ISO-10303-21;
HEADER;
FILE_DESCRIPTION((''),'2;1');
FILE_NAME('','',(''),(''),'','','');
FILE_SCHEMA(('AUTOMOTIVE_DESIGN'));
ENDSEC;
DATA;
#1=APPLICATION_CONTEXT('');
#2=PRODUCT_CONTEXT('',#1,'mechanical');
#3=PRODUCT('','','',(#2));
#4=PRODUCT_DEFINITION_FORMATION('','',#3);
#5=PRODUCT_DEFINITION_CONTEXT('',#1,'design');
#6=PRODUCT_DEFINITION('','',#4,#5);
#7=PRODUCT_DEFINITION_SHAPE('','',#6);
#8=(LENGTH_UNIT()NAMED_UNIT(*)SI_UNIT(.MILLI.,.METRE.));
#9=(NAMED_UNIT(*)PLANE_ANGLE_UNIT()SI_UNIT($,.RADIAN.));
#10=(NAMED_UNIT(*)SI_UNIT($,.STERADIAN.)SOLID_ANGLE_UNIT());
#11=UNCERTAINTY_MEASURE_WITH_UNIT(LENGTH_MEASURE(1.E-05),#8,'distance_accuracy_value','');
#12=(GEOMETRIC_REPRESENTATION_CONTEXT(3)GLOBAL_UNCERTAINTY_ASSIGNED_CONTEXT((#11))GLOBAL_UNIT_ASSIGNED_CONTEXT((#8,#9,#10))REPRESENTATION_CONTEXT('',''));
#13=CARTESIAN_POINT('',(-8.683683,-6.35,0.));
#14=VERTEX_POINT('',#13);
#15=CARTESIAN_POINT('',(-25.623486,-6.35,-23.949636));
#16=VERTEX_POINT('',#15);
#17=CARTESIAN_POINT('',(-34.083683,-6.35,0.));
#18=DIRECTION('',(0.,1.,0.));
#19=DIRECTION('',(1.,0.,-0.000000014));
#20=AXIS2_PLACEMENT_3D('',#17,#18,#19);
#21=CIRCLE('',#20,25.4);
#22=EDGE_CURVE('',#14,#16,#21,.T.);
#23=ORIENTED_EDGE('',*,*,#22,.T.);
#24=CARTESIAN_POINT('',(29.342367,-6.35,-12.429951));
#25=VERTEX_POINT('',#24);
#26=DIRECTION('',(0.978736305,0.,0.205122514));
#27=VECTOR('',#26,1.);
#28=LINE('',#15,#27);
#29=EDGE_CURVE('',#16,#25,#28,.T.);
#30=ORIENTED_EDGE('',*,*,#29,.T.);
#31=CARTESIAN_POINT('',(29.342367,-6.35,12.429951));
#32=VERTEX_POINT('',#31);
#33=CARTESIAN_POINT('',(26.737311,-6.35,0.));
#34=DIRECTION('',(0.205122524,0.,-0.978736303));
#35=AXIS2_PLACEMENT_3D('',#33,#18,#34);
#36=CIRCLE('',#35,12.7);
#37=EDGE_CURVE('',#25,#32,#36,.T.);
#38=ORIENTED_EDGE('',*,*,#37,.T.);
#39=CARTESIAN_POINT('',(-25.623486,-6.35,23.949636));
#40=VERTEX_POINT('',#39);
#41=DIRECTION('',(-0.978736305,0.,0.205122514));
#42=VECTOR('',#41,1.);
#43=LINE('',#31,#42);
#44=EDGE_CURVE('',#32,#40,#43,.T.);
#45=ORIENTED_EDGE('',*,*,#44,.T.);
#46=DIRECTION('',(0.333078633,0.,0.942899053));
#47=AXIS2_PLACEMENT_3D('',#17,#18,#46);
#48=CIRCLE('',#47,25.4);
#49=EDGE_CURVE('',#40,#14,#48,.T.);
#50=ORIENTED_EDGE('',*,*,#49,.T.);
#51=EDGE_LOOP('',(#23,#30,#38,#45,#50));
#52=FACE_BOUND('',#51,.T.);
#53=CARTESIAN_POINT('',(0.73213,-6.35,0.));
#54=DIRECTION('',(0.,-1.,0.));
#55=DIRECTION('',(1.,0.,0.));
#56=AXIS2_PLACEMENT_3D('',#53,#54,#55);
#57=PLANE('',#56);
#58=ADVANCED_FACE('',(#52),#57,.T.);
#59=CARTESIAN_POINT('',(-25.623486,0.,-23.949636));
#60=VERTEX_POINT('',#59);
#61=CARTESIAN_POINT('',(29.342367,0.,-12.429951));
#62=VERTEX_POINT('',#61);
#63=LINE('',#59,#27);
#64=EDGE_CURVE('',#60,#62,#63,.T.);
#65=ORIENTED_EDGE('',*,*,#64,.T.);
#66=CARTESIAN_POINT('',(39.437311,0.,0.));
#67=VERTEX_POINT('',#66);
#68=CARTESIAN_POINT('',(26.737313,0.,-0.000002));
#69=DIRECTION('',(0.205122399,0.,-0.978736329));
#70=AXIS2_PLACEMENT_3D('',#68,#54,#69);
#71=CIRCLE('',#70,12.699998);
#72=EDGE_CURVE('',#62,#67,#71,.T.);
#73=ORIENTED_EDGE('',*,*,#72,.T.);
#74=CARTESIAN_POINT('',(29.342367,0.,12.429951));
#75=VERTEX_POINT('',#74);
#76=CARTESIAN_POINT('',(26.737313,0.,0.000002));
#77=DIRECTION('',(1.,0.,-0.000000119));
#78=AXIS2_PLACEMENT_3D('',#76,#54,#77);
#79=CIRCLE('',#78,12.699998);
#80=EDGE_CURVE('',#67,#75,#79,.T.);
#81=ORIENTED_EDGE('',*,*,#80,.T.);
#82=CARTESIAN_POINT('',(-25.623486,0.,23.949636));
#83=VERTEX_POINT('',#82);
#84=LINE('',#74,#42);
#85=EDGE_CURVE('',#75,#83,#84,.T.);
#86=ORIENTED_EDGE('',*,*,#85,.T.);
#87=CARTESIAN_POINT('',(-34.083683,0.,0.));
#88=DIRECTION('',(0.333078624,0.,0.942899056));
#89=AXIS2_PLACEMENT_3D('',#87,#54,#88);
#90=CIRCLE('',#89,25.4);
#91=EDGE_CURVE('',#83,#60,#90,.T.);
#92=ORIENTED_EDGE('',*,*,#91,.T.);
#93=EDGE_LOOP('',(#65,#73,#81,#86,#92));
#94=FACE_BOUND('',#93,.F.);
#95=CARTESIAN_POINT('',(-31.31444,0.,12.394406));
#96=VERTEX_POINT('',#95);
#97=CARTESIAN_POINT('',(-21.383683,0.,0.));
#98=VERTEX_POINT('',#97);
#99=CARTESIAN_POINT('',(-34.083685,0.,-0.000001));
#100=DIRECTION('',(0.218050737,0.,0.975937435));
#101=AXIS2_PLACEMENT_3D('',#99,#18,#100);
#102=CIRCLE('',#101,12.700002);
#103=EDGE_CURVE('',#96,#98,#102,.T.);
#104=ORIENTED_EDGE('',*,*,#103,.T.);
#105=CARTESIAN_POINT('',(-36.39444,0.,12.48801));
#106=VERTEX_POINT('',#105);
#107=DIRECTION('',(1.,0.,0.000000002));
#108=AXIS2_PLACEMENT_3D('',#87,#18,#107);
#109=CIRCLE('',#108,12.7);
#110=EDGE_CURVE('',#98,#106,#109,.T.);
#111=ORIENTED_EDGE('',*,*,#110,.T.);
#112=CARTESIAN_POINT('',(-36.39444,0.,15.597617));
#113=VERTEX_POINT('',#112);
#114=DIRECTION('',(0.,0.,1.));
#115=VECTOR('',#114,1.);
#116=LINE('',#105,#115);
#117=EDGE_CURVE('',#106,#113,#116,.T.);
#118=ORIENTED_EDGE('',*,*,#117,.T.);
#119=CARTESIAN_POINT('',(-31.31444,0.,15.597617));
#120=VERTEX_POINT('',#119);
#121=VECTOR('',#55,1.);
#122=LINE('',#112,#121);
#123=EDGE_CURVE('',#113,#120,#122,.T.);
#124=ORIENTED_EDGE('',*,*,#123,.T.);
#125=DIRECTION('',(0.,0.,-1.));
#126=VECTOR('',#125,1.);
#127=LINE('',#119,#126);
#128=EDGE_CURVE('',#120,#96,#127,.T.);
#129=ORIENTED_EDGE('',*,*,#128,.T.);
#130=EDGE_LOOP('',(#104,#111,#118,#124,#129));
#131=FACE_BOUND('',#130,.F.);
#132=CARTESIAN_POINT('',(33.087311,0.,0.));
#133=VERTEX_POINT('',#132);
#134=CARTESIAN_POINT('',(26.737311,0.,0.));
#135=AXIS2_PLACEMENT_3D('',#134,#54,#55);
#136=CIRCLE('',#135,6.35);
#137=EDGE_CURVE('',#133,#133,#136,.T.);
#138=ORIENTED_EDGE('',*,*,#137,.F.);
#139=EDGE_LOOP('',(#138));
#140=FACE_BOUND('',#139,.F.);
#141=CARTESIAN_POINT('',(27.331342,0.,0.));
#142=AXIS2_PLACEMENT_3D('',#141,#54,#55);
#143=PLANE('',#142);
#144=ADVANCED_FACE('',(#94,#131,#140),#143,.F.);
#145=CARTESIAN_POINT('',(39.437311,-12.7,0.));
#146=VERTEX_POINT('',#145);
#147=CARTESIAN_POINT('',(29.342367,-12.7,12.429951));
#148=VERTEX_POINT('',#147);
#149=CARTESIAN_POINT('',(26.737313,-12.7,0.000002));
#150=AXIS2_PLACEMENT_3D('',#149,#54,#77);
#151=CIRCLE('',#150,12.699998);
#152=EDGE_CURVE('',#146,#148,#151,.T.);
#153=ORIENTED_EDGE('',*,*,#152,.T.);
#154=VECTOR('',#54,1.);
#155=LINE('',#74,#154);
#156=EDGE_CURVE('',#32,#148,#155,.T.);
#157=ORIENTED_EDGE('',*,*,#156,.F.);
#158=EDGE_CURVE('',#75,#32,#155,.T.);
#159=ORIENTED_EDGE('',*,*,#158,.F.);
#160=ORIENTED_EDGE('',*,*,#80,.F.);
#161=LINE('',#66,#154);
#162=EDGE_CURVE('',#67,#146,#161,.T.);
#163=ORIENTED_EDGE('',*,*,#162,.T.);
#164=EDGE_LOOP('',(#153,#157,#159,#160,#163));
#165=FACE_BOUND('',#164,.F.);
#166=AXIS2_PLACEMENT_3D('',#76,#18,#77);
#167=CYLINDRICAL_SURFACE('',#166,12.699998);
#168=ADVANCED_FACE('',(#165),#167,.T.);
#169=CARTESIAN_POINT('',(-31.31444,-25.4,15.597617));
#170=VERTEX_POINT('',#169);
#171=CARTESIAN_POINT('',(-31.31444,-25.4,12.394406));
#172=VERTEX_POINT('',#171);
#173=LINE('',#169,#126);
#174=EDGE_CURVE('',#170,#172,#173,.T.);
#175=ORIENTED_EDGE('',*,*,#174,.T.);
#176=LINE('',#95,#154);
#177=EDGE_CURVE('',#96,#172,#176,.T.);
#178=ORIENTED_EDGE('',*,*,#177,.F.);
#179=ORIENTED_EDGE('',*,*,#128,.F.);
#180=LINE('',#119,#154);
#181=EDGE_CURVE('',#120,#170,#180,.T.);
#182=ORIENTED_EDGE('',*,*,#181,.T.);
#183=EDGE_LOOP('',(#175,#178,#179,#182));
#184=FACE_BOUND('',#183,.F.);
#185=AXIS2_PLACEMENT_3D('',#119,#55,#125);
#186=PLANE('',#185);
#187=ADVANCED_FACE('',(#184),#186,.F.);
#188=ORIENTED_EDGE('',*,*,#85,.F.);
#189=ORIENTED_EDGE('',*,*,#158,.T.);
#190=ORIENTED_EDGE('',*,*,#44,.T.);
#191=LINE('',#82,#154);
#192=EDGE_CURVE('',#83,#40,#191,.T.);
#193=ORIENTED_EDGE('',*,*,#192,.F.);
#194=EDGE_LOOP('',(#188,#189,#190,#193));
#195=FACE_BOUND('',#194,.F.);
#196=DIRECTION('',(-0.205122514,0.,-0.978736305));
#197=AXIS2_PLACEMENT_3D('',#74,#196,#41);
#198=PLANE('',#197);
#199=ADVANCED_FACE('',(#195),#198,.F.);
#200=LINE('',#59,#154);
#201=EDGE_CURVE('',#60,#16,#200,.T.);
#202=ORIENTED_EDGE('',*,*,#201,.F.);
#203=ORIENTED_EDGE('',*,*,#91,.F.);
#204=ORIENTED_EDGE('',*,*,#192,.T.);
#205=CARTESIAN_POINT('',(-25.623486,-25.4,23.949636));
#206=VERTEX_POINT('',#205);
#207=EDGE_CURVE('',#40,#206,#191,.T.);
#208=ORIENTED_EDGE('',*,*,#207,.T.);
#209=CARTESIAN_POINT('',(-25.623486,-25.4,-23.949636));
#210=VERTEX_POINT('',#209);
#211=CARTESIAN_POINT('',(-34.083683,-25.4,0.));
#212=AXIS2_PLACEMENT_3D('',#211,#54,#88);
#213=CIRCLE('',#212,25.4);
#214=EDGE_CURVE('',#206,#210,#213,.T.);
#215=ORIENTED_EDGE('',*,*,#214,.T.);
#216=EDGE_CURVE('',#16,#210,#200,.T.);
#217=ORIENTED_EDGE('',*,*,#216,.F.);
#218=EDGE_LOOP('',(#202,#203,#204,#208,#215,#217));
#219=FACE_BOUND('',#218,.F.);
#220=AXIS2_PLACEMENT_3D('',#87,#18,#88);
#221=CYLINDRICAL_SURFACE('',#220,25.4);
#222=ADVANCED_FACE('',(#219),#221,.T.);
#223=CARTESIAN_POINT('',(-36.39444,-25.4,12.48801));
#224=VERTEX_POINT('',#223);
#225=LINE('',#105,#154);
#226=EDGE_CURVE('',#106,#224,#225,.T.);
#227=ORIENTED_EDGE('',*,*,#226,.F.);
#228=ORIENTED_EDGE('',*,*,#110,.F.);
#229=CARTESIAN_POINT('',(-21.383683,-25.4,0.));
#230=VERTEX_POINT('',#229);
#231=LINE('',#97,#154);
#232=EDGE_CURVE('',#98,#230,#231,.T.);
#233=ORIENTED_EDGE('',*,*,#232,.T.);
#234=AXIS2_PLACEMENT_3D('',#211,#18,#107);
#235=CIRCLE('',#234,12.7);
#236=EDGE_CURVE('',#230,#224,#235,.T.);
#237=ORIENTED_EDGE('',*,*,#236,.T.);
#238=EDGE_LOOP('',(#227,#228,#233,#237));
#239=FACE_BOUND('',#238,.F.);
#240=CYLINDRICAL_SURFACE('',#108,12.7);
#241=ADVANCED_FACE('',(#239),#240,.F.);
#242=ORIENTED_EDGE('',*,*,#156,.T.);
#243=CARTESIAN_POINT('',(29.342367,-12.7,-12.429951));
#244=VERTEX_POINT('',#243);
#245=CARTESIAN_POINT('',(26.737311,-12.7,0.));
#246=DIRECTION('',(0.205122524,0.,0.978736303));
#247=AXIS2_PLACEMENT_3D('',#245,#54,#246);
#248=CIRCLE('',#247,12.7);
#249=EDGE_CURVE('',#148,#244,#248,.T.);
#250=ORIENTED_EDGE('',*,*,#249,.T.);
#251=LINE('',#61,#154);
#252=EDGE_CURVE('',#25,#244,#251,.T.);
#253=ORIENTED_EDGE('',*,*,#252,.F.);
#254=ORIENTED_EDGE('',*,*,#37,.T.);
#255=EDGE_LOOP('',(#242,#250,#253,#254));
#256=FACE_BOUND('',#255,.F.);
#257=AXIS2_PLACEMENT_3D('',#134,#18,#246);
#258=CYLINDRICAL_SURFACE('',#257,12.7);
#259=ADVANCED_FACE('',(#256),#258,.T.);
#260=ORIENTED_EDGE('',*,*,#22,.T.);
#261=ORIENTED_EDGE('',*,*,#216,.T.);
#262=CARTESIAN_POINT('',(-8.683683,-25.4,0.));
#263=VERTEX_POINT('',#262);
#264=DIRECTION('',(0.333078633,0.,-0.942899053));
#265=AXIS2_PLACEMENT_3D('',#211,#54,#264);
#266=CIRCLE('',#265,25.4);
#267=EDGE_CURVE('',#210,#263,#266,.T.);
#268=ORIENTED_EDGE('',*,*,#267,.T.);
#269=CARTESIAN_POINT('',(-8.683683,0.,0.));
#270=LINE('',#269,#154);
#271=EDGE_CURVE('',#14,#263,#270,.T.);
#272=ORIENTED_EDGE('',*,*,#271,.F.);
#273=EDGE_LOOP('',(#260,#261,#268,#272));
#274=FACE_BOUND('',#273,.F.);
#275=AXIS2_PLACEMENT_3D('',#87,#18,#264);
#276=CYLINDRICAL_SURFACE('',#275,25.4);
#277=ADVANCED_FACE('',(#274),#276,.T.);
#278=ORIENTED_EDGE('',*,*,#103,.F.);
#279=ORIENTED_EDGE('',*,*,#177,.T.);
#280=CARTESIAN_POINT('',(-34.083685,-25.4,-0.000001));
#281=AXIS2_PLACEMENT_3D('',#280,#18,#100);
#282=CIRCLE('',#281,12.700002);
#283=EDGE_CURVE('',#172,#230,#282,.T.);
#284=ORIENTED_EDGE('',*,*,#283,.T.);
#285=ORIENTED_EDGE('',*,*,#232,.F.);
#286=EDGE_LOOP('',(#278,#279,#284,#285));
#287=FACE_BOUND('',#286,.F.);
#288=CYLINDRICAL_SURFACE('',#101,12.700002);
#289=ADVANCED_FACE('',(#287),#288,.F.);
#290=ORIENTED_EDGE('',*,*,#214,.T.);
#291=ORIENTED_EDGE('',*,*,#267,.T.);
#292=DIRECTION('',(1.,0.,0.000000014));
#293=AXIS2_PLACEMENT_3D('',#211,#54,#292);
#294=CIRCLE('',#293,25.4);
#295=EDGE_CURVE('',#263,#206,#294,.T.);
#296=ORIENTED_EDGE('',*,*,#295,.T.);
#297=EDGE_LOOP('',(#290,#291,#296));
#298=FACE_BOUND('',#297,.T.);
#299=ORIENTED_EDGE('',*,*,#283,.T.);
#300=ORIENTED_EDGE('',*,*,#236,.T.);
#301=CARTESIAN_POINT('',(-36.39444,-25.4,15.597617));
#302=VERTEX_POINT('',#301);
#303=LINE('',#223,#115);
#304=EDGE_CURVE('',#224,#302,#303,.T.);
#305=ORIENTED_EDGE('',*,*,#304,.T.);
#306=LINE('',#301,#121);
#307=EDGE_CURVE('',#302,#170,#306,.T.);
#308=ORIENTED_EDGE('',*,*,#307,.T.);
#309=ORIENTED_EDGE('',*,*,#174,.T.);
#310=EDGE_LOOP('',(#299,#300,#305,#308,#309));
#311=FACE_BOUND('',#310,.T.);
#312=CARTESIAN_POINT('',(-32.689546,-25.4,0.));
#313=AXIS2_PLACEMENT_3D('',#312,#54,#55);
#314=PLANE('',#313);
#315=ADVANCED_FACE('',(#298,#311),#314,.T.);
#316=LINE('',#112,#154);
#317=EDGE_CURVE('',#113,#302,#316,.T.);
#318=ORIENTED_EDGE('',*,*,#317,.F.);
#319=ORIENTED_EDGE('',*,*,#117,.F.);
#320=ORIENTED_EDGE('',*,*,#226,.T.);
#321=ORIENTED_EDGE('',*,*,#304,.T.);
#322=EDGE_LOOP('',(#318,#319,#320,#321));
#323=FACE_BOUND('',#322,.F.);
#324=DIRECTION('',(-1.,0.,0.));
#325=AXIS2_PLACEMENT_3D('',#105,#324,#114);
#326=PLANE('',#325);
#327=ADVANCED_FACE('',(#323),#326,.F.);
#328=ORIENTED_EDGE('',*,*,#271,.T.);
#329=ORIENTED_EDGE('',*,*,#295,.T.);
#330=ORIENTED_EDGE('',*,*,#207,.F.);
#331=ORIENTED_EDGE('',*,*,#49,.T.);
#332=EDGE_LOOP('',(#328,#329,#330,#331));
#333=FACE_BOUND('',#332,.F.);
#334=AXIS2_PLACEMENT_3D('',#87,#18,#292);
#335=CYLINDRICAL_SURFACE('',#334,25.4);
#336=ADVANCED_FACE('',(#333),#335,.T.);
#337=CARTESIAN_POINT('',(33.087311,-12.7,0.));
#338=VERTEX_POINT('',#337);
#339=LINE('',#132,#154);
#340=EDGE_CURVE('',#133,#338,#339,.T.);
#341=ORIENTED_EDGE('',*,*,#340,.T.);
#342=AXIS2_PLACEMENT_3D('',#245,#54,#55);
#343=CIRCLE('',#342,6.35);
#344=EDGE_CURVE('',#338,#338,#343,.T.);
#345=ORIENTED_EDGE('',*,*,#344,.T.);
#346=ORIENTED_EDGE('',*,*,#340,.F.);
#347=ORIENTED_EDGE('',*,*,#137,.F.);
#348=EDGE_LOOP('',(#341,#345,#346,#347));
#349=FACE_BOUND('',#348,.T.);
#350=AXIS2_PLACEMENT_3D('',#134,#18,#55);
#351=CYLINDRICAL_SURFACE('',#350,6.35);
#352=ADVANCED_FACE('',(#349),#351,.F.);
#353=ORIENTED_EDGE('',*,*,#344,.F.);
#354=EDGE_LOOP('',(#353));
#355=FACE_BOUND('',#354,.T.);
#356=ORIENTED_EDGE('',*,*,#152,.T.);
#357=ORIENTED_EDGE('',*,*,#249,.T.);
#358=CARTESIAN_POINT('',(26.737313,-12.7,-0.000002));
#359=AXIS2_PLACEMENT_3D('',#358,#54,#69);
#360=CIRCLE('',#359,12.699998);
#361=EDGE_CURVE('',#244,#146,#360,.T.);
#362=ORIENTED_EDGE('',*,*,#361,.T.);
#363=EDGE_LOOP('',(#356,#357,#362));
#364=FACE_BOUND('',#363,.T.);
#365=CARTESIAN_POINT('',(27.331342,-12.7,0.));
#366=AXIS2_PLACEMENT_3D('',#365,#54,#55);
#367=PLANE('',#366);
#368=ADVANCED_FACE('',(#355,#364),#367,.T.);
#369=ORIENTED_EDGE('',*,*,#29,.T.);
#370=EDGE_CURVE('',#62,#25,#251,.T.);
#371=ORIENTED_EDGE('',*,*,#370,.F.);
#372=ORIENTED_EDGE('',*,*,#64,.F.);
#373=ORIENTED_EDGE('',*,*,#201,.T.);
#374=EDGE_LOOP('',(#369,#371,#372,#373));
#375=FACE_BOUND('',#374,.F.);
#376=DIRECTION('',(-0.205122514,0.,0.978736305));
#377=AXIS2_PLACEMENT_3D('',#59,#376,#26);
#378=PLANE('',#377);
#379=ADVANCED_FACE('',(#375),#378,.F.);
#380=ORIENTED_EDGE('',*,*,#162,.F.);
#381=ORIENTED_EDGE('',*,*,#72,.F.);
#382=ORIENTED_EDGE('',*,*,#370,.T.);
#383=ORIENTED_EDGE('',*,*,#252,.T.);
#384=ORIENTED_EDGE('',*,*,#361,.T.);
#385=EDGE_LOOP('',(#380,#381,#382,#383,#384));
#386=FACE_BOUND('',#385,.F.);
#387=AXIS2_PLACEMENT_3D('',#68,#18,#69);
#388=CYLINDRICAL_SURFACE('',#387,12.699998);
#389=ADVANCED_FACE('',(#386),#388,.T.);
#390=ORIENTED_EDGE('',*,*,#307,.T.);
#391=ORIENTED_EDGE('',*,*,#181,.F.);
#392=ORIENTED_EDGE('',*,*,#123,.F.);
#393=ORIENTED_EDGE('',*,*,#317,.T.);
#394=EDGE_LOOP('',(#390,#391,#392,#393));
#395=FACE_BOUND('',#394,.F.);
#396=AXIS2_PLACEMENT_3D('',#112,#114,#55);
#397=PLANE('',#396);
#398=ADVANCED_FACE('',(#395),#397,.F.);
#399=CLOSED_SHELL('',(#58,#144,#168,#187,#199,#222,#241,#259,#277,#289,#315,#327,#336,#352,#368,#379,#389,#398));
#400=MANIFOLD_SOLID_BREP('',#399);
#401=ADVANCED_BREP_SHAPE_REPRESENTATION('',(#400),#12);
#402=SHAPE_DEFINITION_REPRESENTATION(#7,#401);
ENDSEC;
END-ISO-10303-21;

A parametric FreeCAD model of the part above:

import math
import FreeCAD as App
import Part
import Sketcher

V = App.Vector
Q = App.Units.Quantity

doc = App.newDocument("Part")
body = doc.addObject("PartDesign::Body", "Body")

# Sketch on XZ plane
sketch1 = doc.addObject("Sketcher::SketchObject", "Sketch")
body.addObject(sketch1)
sketch1.AttachmentSupport = (doc.XZ_Plane, [""])
sketch1.MapMode = "FlatFace"
sketch1.addGeometry([
    Part.ArcOfCircle(Part.Circle(V(-34.1, 0, 0), V(0, 0, 1), 25.4), math.radians(-71), math.radians(0)),  # 0
    Part.ArcOfCircle(Part.Circle(V(-34.1, 0, 0), V(0, 0, 1), 25.4), math.radians(0), math.radians(71)),  # 1
    Part.ArcOfCircle(Part.Circle(V(-34.1, 0, 0), V(0, 0, 1), 25.4), math.radians(71), math.radians(289)),  # 2
    Part.LineSegment(V(-31.3, 15.6, 0), V(-31.3, 12.4, 0)),  # 3
    Part.ArcOfCircle(Part.Circle(V(-34.1, 0, 0), V(0, 0, 1), 12.7), math.radians(0), math.radians(77)),  # 4
    Part.ArcOfCircle(Part.Circle(V(-34.1, 0, 0), V(0, 0, 1), 12.7), math.radians(100), math.radians(360)),  # 5
    Part.LineSegment(V(-36.4, 12.5, 0), V(-36.4, 15.6, 0)),  # 6
    Part.LineSegment(V(-36.4, 15.6, 0), V(-31.3, 15.6, 0)),  # 7
], False)
sketch1.addConstraint([
    Sketcher.Constraint("Tangent", 0, 2, 1, 1),
    Sketcher.Constraint("Tangent", 1, 2, 2, 1),
    Sketcher.Constraint("Tangent", 2, 2, 0, 1),
    Sketcher.Constraint("Coincident", 3, 2, 4, 2),
    Sketcher.Constraint("Tangent", 4, 1, 5, 2),
    Sketcher.Constraint("Coincident", 5, 1, 6, 1),
    Sketcher.Constraint("Coincident", 6, 2, 7, 1),
    Sketcher.Constraint("Coincident", 7, 2, 3, 1),
    Sketcher.Constraint("Vertical", 3),
    Sketcher.Constraint("Vertical", 6),
    Sketcher.Constraint("Horizontal", 7),
    Sketcher.Constraint("Coincident", 4, 3, 0, 3),
    Sketcher.Constraint("Equal", 4, 5),
    Sketcher.Constraint("Symmetric", 1, 2, 2, 2, -1),
    Sketcher.Constraint("PointOnObject", 0, 2, -1),
    Sketcher.Constraint("PointOnObject", 4, 1, -1),
    Sketcher.Constraint("Radius", 0, Q("1 in")),
    Sketcher.Constraint("Radius", 4, Q("0.5000001 in")),
    Sketcher.Constraint("DistanceX", 7, 1, 7, 2, Q("0.2 in")),
    Sketcher.Constraint("DistanceY", 3, 2, 3, 1, 3.203211),
    Sketcher.Constraint("DistanceX", 4, 3, 1, 2, 8.460199),
    Sketcher.Constraint("DistanceY", 6, 1, 6, 2, 3.109607),
    Sketcher.Constraint("DistanceX", 3, 2, -1, 1, 31.31444),
])
pad1 = doc.addObject("PartDesign::Pad", "Pad")
body.addObject(pad1)
pad1.Profile = sketch1
pad1.Length = Q("1 in")

# Sketch on XZ plane
sketch2 = doc.addObject("Sketcher::SketchObject", "Sketch001")
body.addObject(sketch2)
sketch2.AttachmentSupport = (doc.XZ_Plane, [""])
sketch2.MapMode = "FlatFace"
sketch2.addGeometry([
    Part.ArcOfCircle(Part.Circle(V(-34, 0, 0), V(0, 0, 1), 25), math.radians(0), math.radians(71)),  # 0
    Part.ArcOfCircle(Part.Circle(V(-34, 0, 0), V(0, 0, 1), 25), math.radians(-71), math.radians(0)),  # 1
    Part.LineSegment(V(-26, -24, 0), V(29, -12, 0)),  # 2
    Part.ArcOfCircle(Part.Circle(V(27, 0, 0), V(0, 0, 1), 13), math.radians(78), math.radians(282)),  # 3
    Part.LineSegment(V(29, 12, 0), V(-26, 24, 0)),  # 4
], False)
sketch2.addConstraint([
    Sketcher.Constraint("Tangent", 0, 1, 1, 2),
    Sketcher.Constraint("Coincident", 1, 1, 2, 1),
    Sketcher.Constraint("Tangent", 2, 2, 3, 2),
    Sketcher.Constraint("Tangent", 3, 1, 4, 1),
    Sketcher.Constraint("Coincident", 4, 2, 0, 2),
    Sketcher.Constraint("Equal", 0, 1),
    Sketcher.Constraint("Symmetric", 2, 2, 3, 1, -1),
    Sketcher.Constraint("PointOnObject", 0, 3, -1),
    Sketcher.Constraint("PointOnObject", 0, 1, -1),
    Sketcher.Constraint("Radius", 0, Q("1 in")),
    Sketcher.Constraint("Radius", 3, Q("0.5 in")),
    Sketcher.Constraint("DistanceY", 2, 2, 3, 1, 24.859902),
    Sketcher.Constraint("DistanceX", -1, 1, 3, 3, 26.737311),
    Sketcher.Constraint("DistanceX", 0, 1, 2, 2, 38.02605),
])
pad2 = doc.addObject("PartDesign::Pad", "Pad001")
body.addObject(pad2)
pad2.Profile = sketch2
pad2.Length = Q("0.25 in")

# Sketch on XZ plane
sketch3 = doc.addObject("Sketcher::SketchObject", "Sketch002")
body.addObject(sketch3)
sketch3.AttachmentSupport = (doc.XZ_Plane, [""])
sketch3.MapMode = "FlatFace"
sketch3.addGeometry([
    Part.ArcOfCircle(Part.Circle(V(27, 0, 0), V(0, 0, 1), 13), math.radians(0), math.radians(78)),
    Part.ArcOfCircle(Part.Circle(V(27, 0, 0), V(0, 0, 1), 13), math.radians(78), math.radians(282)),
    Part.ArcOfCircle(Part.Circle(V(27, 0, 0), V(0, 0, 1), 13), math.radians(-78), math.radians(0)),
    Part.Circle(V(27, 0, 0), V(0, 0, 1), 6),
], False)
sketch3.addConstraint([
    Sketcher.Constraint("Tangent", 0, 2, 1, 1),
    Sketcher.Constraint("Tangent", 1, 2, 2, 1),
    Sketcher.Constraint("Tangent", 2, 2, 0, 1),
    Sketcher.Constraint("Coincident", 3, 3, 0, 3),
    Sketcher.Constraint("Symmetric", 0, 2, 1, 2, -1),
    Sketcher.Constraint("PointOnObject", 2, 2, -1),
    Sketcher.Constraint("Diameter", 3, Q("0.5 in")),
    Sketcher.Constraint("Radius", 0, Q("0.4999999 in")),
    Sketcher.Constraint("DistanceY", 1, 2, 0, 2, 24.859902),
    Sketcher.Constraint("DistanceX", -1, 1, 1, 3, 26.737311),
])
pad3 = doc.addObject("PartDesign::Pad", "Pad002")
body.addObject(pad3)
pad3.Profile = sketch3
pad3.Length = Q("0.5 in")

doc.recompute()
